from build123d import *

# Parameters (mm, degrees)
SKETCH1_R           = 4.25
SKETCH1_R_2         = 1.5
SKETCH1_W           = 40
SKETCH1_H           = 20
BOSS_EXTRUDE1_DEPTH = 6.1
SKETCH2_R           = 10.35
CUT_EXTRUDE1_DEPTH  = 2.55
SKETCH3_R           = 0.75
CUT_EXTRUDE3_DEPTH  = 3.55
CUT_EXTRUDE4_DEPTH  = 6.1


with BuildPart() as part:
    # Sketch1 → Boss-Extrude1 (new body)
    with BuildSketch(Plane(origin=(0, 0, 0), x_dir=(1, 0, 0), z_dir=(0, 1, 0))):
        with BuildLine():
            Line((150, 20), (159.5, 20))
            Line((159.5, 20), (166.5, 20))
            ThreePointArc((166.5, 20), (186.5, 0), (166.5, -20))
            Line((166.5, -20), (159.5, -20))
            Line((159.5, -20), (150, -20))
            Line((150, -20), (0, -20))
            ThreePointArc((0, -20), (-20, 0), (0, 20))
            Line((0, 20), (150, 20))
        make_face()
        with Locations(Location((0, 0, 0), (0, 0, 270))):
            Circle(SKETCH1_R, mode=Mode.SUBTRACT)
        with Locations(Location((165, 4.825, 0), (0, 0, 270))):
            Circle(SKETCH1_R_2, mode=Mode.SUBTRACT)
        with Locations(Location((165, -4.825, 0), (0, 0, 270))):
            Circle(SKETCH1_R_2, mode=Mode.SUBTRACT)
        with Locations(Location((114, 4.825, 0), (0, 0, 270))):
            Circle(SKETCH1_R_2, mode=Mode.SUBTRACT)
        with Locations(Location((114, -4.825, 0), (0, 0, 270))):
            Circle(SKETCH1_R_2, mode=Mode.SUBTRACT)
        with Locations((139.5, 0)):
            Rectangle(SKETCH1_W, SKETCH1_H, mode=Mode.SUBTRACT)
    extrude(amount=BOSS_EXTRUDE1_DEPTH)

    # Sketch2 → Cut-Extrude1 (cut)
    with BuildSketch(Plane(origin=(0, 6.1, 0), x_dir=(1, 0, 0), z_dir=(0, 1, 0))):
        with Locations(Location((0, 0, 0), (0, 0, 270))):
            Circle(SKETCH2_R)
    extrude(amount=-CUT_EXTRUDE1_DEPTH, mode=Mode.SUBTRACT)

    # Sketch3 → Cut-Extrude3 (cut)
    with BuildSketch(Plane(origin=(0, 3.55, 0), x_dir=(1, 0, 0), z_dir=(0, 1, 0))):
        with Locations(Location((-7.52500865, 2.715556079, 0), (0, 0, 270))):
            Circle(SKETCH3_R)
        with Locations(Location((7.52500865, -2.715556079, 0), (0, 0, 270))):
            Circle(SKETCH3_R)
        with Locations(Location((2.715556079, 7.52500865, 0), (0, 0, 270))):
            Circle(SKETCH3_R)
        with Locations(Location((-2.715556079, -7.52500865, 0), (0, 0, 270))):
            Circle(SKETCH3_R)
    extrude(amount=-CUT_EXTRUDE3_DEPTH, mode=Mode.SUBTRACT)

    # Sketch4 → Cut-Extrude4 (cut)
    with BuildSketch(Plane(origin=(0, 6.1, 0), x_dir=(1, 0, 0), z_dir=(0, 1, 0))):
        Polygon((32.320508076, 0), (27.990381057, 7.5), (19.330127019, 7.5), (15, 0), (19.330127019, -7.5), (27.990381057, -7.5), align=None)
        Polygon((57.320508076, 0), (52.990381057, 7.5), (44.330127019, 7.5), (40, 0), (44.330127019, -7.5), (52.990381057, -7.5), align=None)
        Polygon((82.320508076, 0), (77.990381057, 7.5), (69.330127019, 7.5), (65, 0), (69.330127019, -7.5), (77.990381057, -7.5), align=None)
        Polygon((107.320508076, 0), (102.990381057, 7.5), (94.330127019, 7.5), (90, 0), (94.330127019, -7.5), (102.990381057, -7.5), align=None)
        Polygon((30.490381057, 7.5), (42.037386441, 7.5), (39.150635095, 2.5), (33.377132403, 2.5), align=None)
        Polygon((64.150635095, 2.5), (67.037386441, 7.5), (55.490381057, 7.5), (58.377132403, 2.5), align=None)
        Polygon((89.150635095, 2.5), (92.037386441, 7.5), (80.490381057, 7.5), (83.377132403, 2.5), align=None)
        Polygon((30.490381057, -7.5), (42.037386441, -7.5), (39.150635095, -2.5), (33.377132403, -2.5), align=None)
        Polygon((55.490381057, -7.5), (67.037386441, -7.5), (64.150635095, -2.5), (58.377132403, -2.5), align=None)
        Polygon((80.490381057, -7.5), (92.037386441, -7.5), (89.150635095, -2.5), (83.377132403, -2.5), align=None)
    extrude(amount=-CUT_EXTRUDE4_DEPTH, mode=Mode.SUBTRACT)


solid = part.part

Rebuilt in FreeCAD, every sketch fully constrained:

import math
import FreeCAD as App
import Part
import Sketcher
Q = App.Units.Quantity


def add_polygon(sketch, points):
    """Adds a closed chain of lines whose ends are joined by coincident constraints."""
    first, n = sketch.GeometryCount, len(points)
    for a, b in zip(points, points[1:] + points[:1]):
        sketch.addGeometry(Part.LineSegment(App.Vector(*a, 0), App.Vector(*b, 0)), False)
    for i in range(n):
        sketch.addConstraint(Sketcher.Constraint("Coincident", first + i, 2, first + (i + 1) % n, 1))

doc = App.newDocument("Part")
body = doc.addObject("PartDesign::Body", "Body")

sketch1 = body.newObject("Sketcher::SketchObject", "Sketch")
sketch1.AttachmentSupport = (doc.getObject("XZ_Plane"), [""])
sketch1.MapMode = "FlatFace"
sketch1.addGeometry(Part.ArcOfCircle(Part.Circle(App.Vector(166.5, 0, 0), App.Vector(0, 0, 1), 20), math.radians(-90), math.radians(90)), False)
sketch1.addGeometry(Part.LineSegment(App.Vector(166.5, -20, 0), App.Vector(0, -20, 0)), False)
sketch1.addGeometry(Part.ArcOfCircle(Part.Circle(App.Vector(0, 0, 0), App.Vector(0, 0, 1), 20), math.radians(90), math.radians(270)), False)
sketch1.addGeometry(Part.LineSegment(App.Vector(0, 20, 0), App.Vector(166.5, 20, 0)), False)
sketch1.addGeometry(Part.Circle(App.Vector(165, 4.8, 0), App.Vector(0, 0, 1), 1.5), False)
sketch1.addGeometry(Part.Circle(App.Vector(114, 4.8, 0), App.Vector(0, 0, 1), 1.5), False)
add_polygon(sketch1, [(119.5, 10), (119.5, -10), (159.5, -10), (159.5, 10)])
sketch1.addGeometry(Part.Circle(App.Vector(165, -4.8, 0), App.Vector(0, 0, 1), 1.5), False)
sketch1.addGeometry(Part.Circle(App.Vector(114, -4.8, 0), App.Vector(0, 0, 1), 1.5), False)
sketch1.addGeometry(Part.Circle(App.Vector(0, 0, 0), App.Vector(0, 0, 1), 4.2), False)
sketch1.addConstraint([
    Sketcher.Constraint("Tangent", 0, 1, 1, 1),
    Sketcher.Constraint("Tangent", 1, 2, 2, 2),
    Sketcher.Constraint("Tangent", 2, 1, 3, 1),
    Sketcher.Constraint("Tangent", 3, 2, 0, 2),
    Sketcher.Constraint("Horizontal", 1),
    Sketcher.Constraint("Horizontal", 3),
    Sketcher.Constraint("Vertical", 6),
    Sketcher.Constraint("Horizontal", 7),
    Sketcher.Constraint("Vertical", 8),
    Sketcher.Constraint("Horizontal", 9),
    Sketcher.Constraint("Coincident", 2, 3, -1, 1),
    Sketcher.Constraint("Coincident", 12, 3, -1, 1),
    Sketcher.Constraint("Equal", 4, 5),
    Sketcher.Constraint("Equal", 5, 10),
    Sketcher.Constraint("Equal", 10, 11),
    Sketcher.Constraint("Symmetric", 4, 3, 10, 3, -1),
    Sketcher.Constraint("Symmetric", 5, 3, 11, 3, -1),
    Sketcher.Constraint("Horizontal", 4, 3, 5, 3),
    Sketcher.Constraint("Diameter", 4, 3.0),
    Sketcher.Constraint("Radius", 0, 20.0),
    Sketcher.Constraint("Diameter", 12, 8.5),
    Sketcher.Constraint("DistanceX", 7, 1, 7, 2, 40.0),
    Sketcher.Constraint("DistanceY", 6, 2, 6, 1, 20.0),
    Sketcher.Constraint("DistanceX", 1, 2, 1, 1, 166.5),
    Sketcher.Constraint("DistanceX", -1, 1, 4, 3, 165.0),
    Sketcher.Constraint("DistanceX", -1, 1, 5, 3, 114.0),
    Sketcher.Constraint("DistanceY", 6, 2, -1, 1, 10.0),
    Sketcher.Constraint("DistanceX", 6, 2, 0, 3, 47.0),
    Sketcher.Constraint("DistanceY", 10, 3, 4, 3, 9.65),
])
pad1 = body.newObject("PartDesign::Pad", "Pad")
pad1.Profile = sketch1
pad1.Length = 6.1
pad1.Reversed = True

sketch2 = body.newObject("Sketcher::SketchObject", "Sketch001")
sketch2.AttachmentSupport = (doc.getObject("XZ_Plane"), [""])
sketch2.MapMode = "FlatFace"
sketch2.AttachmentOffset = App.Placement(App.Vector(0, 0, -6.1), App.Rotation())
sketch2.addGeometry(Part.Circle(App.Vector(0, 0, 0), App.Vector(0, 0, 1), 10), False)
sketch2.addConstraint([
    Sketcher.Constraint("Coincident", 0, 3, -1, 1),
    Sketcher.Constraint("Diameter", 0, 20.7),
])
pocket1 = body.newObject("PartDesign::Pocket", "Pocket")
pocket1.Profile = sketch2
pocket1.Length = 2.55
pocket1.Reversed = True

sketch3 = body.newObject("Sketcher::SketchObject", "Sketch002")
sketch3.AttachmentSupport = (doc.getObject("XZ_Plane"), [""])
sketch3.MapMode = "FlatFace"
sketch3.AttachmentOffset = App.Placement(App.Vector(0, 0, -3.55), App.Rotation())
sketch3.addGeometry([
    Part.Circle(App.Vector(-7.5, -2.7, 0), App.Vector(0, 0, 1), 0.8),
    Part.Circle(App.Vector(7.5, 2.7, 0), App.Vector(0, 0, 1), 0.8),
    Part.Circle(App.Vector(2.7, -7.5, 0), App.Vector(0, 0, 1), 0.8),
    Part.Circle(App.Vector(-2.7, 7.5, 0), App.Vector(0, 0, 1), 0.8),
], False)
sketch3.addConstraint([
    Sketcher.Constraint("Equal", 0, 1),
    Sketcher.Constraint("Equal", 1, 2),
    Sketcher.Constraint("Equal", 2, 3),
    Sketcher.Constraint("Symmetric", 0, 3, 1, 3, -1, 1),
    Sketcher.Constraint("Symmetric", 2, 3, 3, 3, -1, 1),
    Sketcher.Constraint("Diameter", 0, 1.5),
    Sketcher.Constraint("DistanceX", 0, 3, -1, 1, 7.525009),
    Sketcher.Constraint("DistanceY", 2, 3, -1, 1, 7.525009),
    Sketcher.Constraint("DistanceY", 0, 3, -1, 1, 2.715556),
    Sketcher.Constraint("DistanceX", -1, 1, 2, 3, 2.715556),
])
pocket2 = body.newObject("PartDesign::Pocket", "Pocket001")
pocket2.Profile = sketch3
pocket2.Length = 3.55
pocket2.Reversed = True

sketch4 = body.newObject("Sketcher::SketchObject", "Sketch003")
sketch4.AttachmentSupport = (doc.getObject("XZ_Plane"), [""])
sketch4.MapMode = "FlatFace"
sketch4.AttachmentOffset = App.Placement(App.Vector(0, 0, -6.1), App.Rotation())
add_polygon(sketch4, [(32, 0), (28, -8), (19, -8), (15, 0), (19, 8), (28, 8)])
add_polygon(sketch4, [(57, 0), (53, -8), (44, -8), (40, 0), (44, 8), (53, 8)])
add_polygon(sketch4, [(82, 0), (78, -8), (69, -8), (65, 0), (69, 8), (78, 8)])
add_polygon(sketch4, [(107, 0), (103, -8), (94, -8), (90, 0), (94, 8), (103, 8)])
add_polygon(sketch4, [(42, -8), (30, -8), (33, -2), (39, -2)])
add_polygon(sketch4, [(64, -2), (67, -8), (55, -8), (58, -2)])
add_polygon(sketch4, [(89, -2), (92, -8), (80, -8), (83, -2)])
add_polygon(sketch4, [(30, 8), (42, 8), (39, 2), (33, 2)])
add_polygon(sketch4, [(55, 8), (67, 8), (64, 2), (58, 2)])
add_polygon(sketch4, [(80, 8), (92, 8), (89, 2), (83, 2)])
sketch4.addConstraint([
    Sketcher.Constraint("Horizontal", 1),
    Sketcher.Constraint("Horizontal", 4),
    Sketcher.Constraint("Horizontal", 7),
    Sketcher.Constraint("Horizontal", 10),
    Sketcher.Constraint("Horizontal", 13),
    Sketcher.Constraint("Horizontal", 16),
    Sketcher.Constraint("Horizontal", 19),
    Sketcher.Constraint("Horizontal", 22),
    Sketcher.Constraint("Horizontal", 24),
    Sketcher.Constraint("Horizontal", 26),
    Sketcher.Constraint("Horizontal", 29),
    Sketcher.Constraint("Horizontal", 31),
    Sketcher.Constraint("Horizontal", 33),
    Sketcher.Constraint("Horizontal", 35),
    Sketcher.Constraint("Horizontal", 36),
    Sketcher.Constraint("Horizontal", 38),
    Sketcher.Constraint("Horizontal", 40),
    Sketcher.Constraint("Horizontal", 42),
    Sketcher.Constraint("Horizontal", 44),
    Sketcher.Constraint("Horizontal", 46),
    Sketcher.Constraint("Symmetric", 1, 2, 3, 2, -1),
    Sketcher.Constraint("Symmetric", 7, 2, 9, 2, -1),
    Sketcher.Constraint("Symmetric", 13, 2, 15, 2, -1),
    Sketcher.Constraint("Symmetric", 19, 2, 21, 2, -1),
    Sketcher.Constraint("Symmetric", 27, 2, 36, 2, -1),
    Sketcher.Constraint("Symmetric", 26, 2, 37, 2, -1),
    Sketcher.Constraint("Symmetric", 28, 2, 40, 2, -1),
    Sketcher.Constraint("Symmetric", 31, 2, 41, 2, -1),
    Sketcher.Constraint("Symmetric", 32, 2, 44, 2, -1),
    Sketcher.Constraint("Symmetric", 35, 2, 45, 2, -1),
    Sketcher.Constraint("PointOnObject", 2, 2, -1),
    Sketcher.Constraint("PointOnObject", 5, 2, -1),
    Sketcher.Constraint("PointOnObject", 8, 2, -1),
    Sketcher.Constraint("PointOnObject", 11, 2, -1),
    Sketcher.Constraint("PointOnObject", 14, 2, -1),
    Sketcher.Constraint("PointOnObject", 17, 2, -1),
    Sketcher.Constraint("PointOnObject", 20, 2, -1),
    Sketcher.Constraint("PointOnObject", 23, 2, -1),
    Sketcher.Constraint("Parallel", 0, 3),
    Sketcher.Constraint("Parallel", 2, 5),
    Sketcher.Constraint("Parallel", 3, 6),
    Sketcher.Constraint("Parallel", 5, 8),
    Sketcher.Constraint("Parallel", 8, 11),
    Sketcher.Constraint("Parallel", 9, 12),
    Sketcher.Constraint("Parallel", 11, 14),
    Sketcher.Constraint("Parallel", 14, 17),
    Sketcher.Constraint("Parallel", 15, 18),
    Sketcher.Constraint("Parallel", 17, 20),
    Sketcher.Constraint("Parallel", 20, 23),
    Sketcher.Constraint("Parallel", 21, 25),
    Sketcher.Constraint("Parallel", 23, 27),
    Sketcher.Constraint("Parallel", 27, 28),
    Sketcher.Constraint("Parallel", 25, 30),
    Sketcher.Constraint("Parallel", 28, 32),
    Sketcher.Constraint("Parallel", 30, 34),
    Sketcher.Constraint("Parallel", 32, 39),
    Sketcher.Constraint("Parallel", 39, 43),
    Sketcher.Constraint("Parallel", 43, 47),
    Sketcher.Constraint("Horizontal", 1, 2, 6, 2),
    Sketcher.Constraint("Horizontal", 7, 2, 12, 2),
    Sketcher.Constraint("Horizontal", 13, 2, 18, 2),
    Sketcher.Constraint("Horizontal", 19, 2, 24, 2),
    Sketcher.Constraint("Horizontal", 27, 2, 28, 2),
    Sketcher.Constraint("Horizontal", 26, 2, 30, 2),
    Sketcher.Constraint("Horizontal", 29, 2, 32, 2),
    Sketcher.Constraint("Horizontal", 31, 2, 34, 2),
    Sketcher.Constraint("Vertical", 25, 2, 38, 2),
    Sketcher.Constraint("Vertical", 30, 2, 42, 2),
    Sketcher.Constraint("Vertical", 34, 2, 46, 2),
    Sketcher.Constraint("Equal", 4, 7),
    Sketcher.Constraint("Equal", 10, 13),
    Sketcher.Constraint("Equal", 16, 19),
    Sketcher.Constraint("Equal", 24, 29),
    Sketcher.Constraint("Equal", 29, 33),
    Sketcher.Constraint("Angle", 0, Q("-120 deg")),
    Sketcher.Constraint("DistanceX", -1, 1, 2, 2, 15.0),
    Sketcher.Constraint("DistanceX", -1, 1, 8, 2, 40.0),
    Sketcher.Constraint("DistanceX", -1, 1, 14, 2, 65.0),
    Sketcher.Constraint("DistanceX", -1, 1, 20, 2, 90.0),
    Sketcher.Constraint("DistanceY", 1, 2, 3, 2, 15.0),
    Sketcher.Constraint("DistanceY", 24, 2, 25, 2, 5.0),
    Sketcher.Constraint("DistanceX", 0, 2, 24, 2, 2.5),
    Sketcher.Constraint("DistanceX", 6, 2, 29, 2, 2.5),
    Sketcher.Constraint("DistanceX", 12, 2, 33, 2, 2.5),
    Sketcher.Constraint("DistanceX", 1, 2, 1, 1, 8.660254),
    Sketcher.Constraint("DistanceX", 24, 2, 24, 1, 11.547005),
])
pocket3 = body.newObject("PartDesign::Pocket", "Pocket002")
pocket3.Profile = sketch4
pocket3.Length = 6.1
pocket3.Reversed = True

doc.recompute()
